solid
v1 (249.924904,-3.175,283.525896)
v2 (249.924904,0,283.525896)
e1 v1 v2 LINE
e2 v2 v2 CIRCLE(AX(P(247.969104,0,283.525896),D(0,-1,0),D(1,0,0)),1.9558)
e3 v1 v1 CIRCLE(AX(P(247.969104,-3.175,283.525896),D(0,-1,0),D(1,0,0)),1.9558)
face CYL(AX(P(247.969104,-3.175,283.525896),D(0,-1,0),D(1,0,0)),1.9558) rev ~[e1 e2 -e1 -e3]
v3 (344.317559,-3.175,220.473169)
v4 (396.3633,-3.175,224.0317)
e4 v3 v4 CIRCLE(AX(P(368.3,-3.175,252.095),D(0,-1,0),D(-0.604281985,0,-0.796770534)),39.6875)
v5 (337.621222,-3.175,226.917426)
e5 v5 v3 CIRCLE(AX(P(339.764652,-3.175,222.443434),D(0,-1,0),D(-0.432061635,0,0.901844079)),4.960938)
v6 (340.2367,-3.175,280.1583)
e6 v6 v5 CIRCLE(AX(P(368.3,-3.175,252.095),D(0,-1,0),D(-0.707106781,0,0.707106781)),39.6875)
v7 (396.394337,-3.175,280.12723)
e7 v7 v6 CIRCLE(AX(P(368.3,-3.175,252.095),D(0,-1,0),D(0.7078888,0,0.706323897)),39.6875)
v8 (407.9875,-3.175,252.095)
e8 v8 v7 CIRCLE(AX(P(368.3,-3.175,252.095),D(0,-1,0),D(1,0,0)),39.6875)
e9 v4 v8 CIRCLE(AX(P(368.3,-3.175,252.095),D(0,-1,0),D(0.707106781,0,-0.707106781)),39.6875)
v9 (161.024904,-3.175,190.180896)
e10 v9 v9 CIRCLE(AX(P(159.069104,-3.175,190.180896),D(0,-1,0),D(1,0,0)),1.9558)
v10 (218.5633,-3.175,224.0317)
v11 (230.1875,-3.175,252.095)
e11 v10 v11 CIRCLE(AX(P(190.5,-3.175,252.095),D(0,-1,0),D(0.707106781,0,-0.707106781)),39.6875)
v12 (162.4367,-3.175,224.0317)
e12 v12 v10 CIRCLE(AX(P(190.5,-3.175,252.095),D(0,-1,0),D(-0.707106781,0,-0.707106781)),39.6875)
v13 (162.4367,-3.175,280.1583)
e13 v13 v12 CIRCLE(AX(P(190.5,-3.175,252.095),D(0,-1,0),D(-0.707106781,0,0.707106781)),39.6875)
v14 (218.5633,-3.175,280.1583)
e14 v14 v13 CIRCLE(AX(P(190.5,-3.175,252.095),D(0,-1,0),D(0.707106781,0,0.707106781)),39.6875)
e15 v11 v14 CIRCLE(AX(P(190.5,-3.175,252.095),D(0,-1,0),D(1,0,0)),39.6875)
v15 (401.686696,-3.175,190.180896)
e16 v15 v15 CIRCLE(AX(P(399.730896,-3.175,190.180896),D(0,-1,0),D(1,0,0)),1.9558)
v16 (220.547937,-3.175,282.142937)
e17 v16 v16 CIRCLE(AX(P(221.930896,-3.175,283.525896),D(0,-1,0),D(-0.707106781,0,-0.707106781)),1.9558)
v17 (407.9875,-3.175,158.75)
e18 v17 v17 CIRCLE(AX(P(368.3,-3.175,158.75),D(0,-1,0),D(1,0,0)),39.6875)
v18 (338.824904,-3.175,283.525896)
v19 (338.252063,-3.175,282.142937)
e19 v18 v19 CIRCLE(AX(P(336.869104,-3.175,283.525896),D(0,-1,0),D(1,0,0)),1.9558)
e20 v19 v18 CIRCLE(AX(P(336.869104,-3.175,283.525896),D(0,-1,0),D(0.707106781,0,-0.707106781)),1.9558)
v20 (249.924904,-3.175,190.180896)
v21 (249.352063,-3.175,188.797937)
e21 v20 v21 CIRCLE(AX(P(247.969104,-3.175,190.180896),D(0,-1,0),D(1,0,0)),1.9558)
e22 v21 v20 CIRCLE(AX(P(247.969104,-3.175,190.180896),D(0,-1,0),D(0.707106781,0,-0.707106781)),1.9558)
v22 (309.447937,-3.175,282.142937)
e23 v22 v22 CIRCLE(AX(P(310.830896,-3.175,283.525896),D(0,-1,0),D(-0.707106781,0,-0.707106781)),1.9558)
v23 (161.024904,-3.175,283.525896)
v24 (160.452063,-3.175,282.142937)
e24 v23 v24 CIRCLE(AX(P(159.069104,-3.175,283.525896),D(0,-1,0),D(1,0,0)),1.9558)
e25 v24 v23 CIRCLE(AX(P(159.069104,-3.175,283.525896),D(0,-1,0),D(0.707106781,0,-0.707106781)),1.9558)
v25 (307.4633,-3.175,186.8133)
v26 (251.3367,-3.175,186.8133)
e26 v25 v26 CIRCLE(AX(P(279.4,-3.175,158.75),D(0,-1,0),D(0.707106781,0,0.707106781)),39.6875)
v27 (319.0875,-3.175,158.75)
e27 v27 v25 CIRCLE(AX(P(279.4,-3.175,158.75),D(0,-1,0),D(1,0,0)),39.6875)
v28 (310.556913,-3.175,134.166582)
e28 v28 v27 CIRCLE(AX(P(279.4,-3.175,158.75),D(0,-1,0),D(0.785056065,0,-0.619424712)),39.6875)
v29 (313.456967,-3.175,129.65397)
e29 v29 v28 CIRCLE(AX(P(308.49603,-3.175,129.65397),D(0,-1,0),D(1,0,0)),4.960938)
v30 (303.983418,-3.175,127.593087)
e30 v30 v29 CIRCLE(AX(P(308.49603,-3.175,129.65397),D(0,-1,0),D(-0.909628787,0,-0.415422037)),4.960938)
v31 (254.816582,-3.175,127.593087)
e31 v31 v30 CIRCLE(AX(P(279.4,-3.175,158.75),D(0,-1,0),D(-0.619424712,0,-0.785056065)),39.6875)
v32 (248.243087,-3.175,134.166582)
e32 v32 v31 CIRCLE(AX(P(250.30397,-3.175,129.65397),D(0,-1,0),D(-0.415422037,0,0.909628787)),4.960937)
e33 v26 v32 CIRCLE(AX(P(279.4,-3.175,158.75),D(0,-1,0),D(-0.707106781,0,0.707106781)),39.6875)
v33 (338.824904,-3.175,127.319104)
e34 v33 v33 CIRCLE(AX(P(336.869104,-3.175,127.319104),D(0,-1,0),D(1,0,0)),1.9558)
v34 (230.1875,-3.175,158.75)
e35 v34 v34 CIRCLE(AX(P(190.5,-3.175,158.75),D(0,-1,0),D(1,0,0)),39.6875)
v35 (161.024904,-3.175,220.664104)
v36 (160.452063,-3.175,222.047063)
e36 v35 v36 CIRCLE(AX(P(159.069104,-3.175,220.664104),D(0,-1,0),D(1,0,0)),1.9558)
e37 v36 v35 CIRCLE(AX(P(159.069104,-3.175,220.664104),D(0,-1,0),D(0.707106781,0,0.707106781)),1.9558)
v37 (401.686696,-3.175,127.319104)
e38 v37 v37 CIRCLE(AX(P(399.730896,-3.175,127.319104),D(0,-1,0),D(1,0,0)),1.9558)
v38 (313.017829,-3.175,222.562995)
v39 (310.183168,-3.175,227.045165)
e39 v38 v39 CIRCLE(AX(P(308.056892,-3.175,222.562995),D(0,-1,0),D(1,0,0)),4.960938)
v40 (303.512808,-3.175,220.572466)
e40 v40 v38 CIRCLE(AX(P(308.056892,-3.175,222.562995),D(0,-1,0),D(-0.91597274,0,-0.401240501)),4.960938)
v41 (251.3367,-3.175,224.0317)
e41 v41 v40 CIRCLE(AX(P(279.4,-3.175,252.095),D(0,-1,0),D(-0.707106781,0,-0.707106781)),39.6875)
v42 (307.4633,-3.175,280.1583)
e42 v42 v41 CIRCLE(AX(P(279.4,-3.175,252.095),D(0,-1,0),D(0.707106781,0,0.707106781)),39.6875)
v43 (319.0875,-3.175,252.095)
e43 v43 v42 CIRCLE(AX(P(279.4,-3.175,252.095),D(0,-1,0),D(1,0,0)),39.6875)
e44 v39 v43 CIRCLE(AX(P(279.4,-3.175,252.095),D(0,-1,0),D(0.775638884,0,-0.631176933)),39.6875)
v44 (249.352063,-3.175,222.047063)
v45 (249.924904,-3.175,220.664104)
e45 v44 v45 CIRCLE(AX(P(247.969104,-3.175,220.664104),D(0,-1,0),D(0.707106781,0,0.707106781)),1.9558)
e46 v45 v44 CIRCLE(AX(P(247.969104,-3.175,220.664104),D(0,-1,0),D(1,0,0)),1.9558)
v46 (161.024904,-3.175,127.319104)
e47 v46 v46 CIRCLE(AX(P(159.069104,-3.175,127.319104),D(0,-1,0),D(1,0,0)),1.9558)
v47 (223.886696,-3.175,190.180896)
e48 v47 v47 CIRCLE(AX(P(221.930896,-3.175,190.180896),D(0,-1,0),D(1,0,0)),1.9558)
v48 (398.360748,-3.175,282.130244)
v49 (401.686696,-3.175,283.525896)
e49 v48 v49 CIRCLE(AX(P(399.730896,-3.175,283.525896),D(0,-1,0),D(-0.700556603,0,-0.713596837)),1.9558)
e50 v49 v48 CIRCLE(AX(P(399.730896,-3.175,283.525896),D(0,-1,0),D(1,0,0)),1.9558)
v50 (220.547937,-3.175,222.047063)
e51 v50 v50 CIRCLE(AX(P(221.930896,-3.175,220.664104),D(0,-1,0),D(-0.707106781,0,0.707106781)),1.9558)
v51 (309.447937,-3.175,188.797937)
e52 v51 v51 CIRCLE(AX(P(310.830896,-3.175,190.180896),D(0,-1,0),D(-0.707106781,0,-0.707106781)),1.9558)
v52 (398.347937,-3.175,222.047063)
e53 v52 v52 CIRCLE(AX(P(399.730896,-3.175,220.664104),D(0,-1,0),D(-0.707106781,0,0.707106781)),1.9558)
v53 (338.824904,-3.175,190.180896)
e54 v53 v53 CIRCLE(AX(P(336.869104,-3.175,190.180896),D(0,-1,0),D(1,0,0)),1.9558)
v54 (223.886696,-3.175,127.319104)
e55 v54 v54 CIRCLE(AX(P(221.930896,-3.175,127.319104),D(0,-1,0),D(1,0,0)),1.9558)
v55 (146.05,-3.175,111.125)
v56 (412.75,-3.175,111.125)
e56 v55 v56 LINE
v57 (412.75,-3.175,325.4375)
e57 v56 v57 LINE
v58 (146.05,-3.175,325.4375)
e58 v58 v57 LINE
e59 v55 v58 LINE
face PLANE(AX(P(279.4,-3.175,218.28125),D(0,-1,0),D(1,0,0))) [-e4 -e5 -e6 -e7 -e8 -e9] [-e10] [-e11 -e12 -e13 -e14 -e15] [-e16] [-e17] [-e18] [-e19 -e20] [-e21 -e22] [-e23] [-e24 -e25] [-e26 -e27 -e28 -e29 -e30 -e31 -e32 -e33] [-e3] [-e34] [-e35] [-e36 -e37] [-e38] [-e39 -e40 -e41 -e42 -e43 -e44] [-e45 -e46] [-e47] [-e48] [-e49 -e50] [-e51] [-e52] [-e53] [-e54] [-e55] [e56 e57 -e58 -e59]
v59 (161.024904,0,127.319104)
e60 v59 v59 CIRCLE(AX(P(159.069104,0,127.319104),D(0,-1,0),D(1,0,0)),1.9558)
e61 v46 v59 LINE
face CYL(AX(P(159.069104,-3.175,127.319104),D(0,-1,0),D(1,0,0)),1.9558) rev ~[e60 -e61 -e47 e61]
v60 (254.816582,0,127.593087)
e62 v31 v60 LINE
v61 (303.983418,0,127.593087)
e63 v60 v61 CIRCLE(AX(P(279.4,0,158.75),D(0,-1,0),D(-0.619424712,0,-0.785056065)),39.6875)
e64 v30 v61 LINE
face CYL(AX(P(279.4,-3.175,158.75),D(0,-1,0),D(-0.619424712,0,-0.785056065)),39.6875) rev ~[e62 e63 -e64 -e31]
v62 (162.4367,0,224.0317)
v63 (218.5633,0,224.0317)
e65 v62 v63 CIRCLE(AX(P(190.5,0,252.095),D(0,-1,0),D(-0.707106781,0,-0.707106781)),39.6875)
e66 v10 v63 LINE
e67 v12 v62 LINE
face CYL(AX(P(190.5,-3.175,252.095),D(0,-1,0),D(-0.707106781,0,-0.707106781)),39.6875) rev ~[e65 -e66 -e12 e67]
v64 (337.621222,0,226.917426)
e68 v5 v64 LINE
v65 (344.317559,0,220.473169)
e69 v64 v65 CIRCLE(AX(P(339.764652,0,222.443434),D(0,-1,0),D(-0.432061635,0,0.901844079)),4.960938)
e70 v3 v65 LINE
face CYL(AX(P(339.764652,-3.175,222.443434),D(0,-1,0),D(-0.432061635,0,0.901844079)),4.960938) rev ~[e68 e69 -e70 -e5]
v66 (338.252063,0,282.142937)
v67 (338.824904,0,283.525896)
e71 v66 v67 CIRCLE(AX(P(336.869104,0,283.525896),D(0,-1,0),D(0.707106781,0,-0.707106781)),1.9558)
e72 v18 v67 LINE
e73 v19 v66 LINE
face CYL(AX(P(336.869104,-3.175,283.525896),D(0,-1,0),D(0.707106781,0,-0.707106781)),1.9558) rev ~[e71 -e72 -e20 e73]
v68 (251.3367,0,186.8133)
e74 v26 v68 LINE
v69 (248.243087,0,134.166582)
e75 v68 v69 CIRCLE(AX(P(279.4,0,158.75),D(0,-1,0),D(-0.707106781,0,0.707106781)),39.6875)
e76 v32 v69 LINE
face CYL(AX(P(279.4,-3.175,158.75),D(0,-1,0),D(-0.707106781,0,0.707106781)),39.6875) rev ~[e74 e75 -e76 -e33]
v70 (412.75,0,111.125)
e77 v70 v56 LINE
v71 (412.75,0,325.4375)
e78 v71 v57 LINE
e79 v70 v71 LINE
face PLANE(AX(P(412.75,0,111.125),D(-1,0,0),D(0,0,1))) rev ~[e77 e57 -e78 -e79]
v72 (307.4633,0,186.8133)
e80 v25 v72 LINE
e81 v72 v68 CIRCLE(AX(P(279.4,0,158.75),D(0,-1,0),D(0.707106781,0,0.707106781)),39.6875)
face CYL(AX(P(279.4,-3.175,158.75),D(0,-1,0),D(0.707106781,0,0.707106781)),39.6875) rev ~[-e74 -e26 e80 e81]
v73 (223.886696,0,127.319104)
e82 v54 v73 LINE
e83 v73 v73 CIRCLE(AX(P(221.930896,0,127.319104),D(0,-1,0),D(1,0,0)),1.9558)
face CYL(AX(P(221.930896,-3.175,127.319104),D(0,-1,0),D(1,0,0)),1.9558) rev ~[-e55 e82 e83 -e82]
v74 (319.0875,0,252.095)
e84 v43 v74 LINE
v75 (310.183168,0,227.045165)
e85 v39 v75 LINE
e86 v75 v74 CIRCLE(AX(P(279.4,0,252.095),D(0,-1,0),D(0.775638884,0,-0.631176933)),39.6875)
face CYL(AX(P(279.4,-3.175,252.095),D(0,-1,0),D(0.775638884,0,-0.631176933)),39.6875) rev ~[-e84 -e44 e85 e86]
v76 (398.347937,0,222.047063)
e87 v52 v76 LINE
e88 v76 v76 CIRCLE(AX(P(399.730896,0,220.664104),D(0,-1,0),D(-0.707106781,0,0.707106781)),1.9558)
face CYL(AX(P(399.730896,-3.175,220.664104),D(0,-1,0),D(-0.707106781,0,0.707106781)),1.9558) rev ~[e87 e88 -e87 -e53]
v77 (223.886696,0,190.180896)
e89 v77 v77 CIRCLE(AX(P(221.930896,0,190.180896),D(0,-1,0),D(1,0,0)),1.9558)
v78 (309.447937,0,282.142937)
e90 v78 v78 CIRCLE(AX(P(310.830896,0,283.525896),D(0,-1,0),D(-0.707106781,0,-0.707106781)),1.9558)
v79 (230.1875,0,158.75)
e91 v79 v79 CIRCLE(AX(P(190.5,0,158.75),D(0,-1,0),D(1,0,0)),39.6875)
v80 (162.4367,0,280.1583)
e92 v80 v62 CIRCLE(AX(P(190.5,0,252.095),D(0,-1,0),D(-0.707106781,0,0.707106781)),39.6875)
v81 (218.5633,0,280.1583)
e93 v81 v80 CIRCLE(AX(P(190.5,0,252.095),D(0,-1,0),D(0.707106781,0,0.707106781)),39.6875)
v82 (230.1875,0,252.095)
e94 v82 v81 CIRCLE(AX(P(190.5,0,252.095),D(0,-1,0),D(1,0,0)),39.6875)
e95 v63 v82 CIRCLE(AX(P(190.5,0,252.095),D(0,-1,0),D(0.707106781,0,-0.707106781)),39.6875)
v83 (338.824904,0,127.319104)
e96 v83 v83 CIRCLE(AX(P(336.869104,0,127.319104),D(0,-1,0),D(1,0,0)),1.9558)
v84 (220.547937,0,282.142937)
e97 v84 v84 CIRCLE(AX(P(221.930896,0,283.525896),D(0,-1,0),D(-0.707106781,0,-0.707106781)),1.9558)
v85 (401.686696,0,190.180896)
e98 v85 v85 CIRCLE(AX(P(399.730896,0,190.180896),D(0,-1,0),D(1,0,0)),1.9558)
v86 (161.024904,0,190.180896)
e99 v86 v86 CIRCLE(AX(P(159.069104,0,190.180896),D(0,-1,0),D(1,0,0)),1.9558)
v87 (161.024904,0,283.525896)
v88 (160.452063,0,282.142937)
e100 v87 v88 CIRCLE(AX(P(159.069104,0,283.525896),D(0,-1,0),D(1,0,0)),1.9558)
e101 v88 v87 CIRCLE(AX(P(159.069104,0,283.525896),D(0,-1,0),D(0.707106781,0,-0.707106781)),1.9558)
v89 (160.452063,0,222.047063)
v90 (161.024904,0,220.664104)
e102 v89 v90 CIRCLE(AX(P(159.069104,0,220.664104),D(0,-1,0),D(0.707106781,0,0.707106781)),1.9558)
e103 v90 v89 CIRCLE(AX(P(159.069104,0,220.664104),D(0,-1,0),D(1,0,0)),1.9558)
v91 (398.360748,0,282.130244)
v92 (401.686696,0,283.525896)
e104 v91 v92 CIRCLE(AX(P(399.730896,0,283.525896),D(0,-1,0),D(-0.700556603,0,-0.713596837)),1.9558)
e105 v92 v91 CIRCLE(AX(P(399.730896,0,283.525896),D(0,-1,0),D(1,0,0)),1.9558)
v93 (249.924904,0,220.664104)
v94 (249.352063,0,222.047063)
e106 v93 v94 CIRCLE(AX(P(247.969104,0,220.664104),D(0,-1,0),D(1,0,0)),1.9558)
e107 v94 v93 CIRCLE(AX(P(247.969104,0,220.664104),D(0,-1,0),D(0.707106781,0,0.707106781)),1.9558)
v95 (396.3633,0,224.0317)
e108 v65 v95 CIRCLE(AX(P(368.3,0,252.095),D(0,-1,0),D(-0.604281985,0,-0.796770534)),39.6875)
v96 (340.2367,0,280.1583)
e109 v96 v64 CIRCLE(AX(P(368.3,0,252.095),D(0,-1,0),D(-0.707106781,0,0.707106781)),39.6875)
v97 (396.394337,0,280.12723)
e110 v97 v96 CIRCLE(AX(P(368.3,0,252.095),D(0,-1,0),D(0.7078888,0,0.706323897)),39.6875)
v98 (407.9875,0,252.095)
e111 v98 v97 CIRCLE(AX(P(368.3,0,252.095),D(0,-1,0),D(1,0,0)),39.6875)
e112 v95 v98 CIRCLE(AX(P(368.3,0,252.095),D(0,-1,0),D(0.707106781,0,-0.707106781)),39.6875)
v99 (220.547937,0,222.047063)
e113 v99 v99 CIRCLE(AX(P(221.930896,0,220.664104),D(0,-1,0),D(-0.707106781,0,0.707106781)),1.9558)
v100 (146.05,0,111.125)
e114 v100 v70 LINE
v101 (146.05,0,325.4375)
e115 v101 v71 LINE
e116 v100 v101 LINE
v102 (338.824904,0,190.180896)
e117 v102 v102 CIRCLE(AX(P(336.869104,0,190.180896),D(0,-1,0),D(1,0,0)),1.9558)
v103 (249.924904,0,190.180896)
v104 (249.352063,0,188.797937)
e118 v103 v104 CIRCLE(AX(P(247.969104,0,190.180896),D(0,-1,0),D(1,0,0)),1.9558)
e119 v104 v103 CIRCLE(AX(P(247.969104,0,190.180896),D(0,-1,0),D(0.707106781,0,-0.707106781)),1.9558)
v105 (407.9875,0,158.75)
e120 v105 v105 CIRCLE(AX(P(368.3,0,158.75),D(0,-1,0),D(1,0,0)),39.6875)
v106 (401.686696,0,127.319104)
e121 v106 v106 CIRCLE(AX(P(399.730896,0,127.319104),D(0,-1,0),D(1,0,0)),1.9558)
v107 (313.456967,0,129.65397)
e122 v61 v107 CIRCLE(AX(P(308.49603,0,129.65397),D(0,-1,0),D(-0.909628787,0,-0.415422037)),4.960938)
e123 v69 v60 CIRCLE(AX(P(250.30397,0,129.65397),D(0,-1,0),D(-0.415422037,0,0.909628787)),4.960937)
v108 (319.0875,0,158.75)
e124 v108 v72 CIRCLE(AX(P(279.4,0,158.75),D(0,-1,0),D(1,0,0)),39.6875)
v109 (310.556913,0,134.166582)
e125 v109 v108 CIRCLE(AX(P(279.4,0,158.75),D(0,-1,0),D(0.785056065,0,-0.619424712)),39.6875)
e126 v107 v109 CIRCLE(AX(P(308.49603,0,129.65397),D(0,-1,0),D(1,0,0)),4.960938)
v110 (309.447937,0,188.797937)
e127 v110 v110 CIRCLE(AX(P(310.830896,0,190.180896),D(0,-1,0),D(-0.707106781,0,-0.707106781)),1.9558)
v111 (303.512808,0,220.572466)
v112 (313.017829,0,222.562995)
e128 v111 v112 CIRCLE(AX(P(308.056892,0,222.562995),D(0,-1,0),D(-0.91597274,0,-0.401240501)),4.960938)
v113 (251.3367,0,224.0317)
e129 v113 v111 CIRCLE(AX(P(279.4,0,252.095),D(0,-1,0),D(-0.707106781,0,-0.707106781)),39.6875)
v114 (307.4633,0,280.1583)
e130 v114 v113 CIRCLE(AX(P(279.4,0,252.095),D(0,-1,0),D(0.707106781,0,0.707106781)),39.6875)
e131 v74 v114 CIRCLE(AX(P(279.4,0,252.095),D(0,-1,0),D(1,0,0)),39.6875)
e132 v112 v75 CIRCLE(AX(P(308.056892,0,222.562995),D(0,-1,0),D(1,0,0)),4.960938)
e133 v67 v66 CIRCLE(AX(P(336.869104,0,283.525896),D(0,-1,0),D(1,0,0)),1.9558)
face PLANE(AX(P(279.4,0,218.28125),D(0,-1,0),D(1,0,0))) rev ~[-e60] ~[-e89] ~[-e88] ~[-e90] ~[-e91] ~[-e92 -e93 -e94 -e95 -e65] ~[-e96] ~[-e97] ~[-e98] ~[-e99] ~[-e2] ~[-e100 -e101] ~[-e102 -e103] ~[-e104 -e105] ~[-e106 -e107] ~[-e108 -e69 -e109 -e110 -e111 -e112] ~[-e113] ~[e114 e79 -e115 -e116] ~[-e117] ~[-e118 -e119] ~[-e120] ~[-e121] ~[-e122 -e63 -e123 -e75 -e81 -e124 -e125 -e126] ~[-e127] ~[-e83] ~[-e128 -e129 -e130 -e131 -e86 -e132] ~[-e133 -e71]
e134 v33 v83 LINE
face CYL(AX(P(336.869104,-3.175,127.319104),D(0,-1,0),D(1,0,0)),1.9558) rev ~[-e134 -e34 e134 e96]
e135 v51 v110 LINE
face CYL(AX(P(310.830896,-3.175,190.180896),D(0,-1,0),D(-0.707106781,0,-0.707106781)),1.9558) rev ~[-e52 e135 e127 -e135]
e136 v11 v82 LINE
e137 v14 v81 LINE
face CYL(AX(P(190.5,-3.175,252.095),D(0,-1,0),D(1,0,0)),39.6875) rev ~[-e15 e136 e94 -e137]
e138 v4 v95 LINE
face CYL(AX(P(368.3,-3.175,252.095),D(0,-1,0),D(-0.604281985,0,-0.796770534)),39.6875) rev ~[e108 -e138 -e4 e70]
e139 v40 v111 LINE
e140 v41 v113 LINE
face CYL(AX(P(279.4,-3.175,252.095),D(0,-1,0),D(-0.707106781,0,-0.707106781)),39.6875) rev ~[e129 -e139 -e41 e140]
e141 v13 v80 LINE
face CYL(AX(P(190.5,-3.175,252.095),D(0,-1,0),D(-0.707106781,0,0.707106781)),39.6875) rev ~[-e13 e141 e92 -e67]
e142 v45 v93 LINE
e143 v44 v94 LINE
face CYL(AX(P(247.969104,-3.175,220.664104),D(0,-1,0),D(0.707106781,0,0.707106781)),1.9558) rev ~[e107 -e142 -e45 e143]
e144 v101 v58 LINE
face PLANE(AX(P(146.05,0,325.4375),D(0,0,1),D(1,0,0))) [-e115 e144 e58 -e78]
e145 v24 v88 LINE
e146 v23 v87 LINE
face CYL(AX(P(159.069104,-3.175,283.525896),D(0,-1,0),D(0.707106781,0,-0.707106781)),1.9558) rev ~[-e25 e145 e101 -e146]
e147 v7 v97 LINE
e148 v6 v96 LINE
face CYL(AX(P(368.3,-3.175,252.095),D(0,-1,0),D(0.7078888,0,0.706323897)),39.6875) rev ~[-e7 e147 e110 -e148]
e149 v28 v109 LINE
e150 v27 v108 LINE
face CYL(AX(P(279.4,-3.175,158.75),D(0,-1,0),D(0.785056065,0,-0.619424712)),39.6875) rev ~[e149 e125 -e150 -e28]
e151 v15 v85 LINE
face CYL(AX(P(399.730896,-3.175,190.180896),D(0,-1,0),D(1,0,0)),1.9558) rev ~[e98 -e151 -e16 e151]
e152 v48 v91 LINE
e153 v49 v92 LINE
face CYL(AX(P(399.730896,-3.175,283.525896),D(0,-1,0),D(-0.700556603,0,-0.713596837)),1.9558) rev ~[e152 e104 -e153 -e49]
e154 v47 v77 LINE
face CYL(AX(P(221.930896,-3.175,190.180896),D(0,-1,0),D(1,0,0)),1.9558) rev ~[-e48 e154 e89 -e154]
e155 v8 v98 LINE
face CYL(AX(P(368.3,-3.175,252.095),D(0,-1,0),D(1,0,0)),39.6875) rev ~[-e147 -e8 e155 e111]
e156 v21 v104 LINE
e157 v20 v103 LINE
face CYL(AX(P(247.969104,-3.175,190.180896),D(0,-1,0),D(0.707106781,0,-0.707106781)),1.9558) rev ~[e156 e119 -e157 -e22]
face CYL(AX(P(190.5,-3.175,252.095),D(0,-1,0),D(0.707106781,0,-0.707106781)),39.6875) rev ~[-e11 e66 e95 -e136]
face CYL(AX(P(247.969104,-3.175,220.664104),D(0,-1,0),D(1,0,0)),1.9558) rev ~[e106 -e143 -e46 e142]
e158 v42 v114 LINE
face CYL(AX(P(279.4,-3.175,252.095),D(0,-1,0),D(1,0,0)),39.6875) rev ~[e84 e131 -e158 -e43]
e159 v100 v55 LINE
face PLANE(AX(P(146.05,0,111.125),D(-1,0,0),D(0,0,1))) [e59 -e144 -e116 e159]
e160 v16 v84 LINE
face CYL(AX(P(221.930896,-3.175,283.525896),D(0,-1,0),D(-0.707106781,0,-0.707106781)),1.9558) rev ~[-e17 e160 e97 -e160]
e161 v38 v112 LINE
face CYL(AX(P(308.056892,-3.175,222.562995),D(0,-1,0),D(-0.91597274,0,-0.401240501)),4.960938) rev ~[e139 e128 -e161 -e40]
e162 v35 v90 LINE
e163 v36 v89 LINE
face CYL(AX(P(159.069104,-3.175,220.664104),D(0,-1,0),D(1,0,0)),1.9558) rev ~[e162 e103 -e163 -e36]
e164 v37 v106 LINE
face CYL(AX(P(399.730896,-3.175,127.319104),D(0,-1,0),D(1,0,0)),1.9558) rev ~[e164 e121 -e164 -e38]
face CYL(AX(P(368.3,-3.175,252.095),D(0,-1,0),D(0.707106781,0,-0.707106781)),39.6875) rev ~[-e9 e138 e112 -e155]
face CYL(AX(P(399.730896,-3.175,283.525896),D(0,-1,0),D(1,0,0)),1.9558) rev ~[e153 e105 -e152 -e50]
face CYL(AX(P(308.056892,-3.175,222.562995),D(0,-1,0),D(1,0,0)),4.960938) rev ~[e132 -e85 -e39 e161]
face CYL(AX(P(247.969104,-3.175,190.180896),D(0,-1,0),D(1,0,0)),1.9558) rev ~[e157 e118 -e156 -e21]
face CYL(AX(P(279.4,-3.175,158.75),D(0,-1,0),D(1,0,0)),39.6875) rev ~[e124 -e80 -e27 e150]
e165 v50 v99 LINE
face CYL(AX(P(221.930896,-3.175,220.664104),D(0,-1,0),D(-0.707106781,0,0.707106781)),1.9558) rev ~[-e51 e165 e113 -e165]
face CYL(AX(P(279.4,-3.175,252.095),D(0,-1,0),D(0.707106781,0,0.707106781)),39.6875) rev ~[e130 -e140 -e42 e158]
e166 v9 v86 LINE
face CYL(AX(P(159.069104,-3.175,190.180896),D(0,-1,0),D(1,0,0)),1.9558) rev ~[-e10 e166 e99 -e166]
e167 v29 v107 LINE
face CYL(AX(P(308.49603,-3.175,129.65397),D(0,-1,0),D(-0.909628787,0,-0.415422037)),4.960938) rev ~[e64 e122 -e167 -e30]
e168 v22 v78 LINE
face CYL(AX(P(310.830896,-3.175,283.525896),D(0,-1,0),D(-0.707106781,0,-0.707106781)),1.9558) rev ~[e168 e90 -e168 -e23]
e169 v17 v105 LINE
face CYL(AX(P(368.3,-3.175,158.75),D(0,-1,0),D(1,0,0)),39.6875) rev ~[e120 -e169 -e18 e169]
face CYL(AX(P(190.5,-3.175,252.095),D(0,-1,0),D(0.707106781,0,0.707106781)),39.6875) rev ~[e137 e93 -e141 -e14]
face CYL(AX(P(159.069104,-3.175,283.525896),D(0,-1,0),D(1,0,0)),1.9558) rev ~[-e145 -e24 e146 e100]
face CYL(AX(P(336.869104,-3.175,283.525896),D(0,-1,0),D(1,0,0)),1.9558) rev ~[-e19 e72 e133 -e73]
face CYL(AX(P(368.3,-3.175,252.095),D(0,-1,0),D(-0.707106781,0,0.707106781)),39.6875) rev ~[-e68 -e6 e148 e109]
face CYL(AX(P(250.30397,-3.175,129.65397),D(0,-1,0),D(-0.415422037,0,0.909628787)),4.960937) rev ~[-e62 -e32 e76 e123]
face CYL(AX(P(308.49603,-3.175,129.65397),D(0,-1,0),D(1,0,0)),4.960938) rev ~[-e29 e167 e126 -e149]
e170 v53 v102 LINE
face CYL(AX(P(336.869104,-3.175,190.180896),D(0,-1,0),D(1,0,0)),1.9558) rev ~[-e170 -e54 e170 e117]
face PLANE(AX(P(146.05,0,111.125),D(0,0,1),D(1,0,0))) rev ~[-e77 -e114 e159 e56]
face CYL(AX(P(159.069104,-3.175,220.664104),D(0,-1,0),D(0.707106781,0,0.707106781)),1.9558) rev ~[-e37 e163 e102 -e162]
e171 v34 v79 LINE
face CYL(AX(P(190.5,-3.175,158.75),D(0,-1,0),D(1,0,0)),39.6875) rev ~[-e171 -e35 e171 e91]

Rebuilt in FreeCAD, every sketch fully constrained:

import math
import FreeCAD as App
import Part
import Sketcher

V = App.Vector
Q = App.Units.Quantity

doc = App.newDocument("Part")
body = doc.addObject("PartDesign::Body", "Body")

sketch1 = doc.addObject("Sketcher::SketchObject", "Sketch")
body.addObject(sketch1)
sketch1.AttachmentSupport = (doc.XZ_Plane, [""])
sketch1.MapMode = "FlatFace"
sketch1.addGeometry([
    Part.LineSegment(V(146, 325, 0), V(146, 111, 0)),
    Part.LineSegment(V(146, 111, 0), V(413, 111, 0)),
    Part.LineSegment(V(413, 111, 0), V(413, 325, 0)),
    Part.LineSegment(V(413, 325, 0), V(146, 325, 0)),
], False)
sketch1.addConstraint([
    Sketcher.Constraint("Coincident", 0, 2, 1, 1),
    Sketcher.Constraint("Coincident", 1, 2, 2, 1),
    Sketcher.Constraint("Coincident", 2, 2, 3, 1),
    Sketcher.Constraint("Coincident", 3, 2, 0, 1),
    Sketcher.Constraint("Vertical", 0),
    Sketcher.Constraint("Horizontal", 1),
    Sketcher.Constraint("Vertical", 2),
    Sketcher.Constraint("Horizontal", 3),
    Sketcher.Constraint("DistanceX", 1, 1, 1, 2, Q("10.5 in")),
    Sketcher.Constraint("DistanceY", 0, 2, 0, 1, Q("8.4375 in")),
    Sketcher.Constraint("DistanceX", -1, 1, 0, 2, Q("5.75 in")),
    Sketcher.Constraint("DistanceY", -1, 1, 0, 2, Q("4.375 in")),
])
pad1 = doc.addObject("PartDesign::Pad", "Pad")
body.addObject(pad1)
pad1.Profile = sketch1
pad1.Length = Q("0.125 in")

sketch2 = doc.addObject("Sketcher::SketchObject", "Sketch001")
body.addObject(sketch2)
sketch2.AttachmentSupport = (doc.XZ_Plane, [""])
sketch2.MapMode = "FlatFace"
sketch2.AttachmentOffset = App.Placement(V(0, 0, 0.125 * 25.4), App.Rotation())
sketch2.addGeometry([
    Part.ArcOfCircle(Part.Circle(V(250.3, 129.7, 0), V(0, 0, 1), 5), math.radians(115), math.radians(335)),
    Part.ArcOfCircle(Part.Circle(V(279.4, 158.8, 0), V(0, 0, 1), 39.7), math.radians(-128), math.radians(-52)),
    Part.ArcOfCircle(Part.Circle(V(308.5, 129.7, 0), V(0, 0, 1), 5), math.radians(-155), math.radians(0)),
    Part.ArcOfCircle(Part.Circle(V(308.5, 129.7, 0), V(0, 0, 1), 5), math.radians(0), math.radians(65)),
    Part.ArcOfCircle(Part.Circle(V(279.4, 158.8, 0), V(0, 0, 1), 39.7), math.radians(-38), math.radians(0)),
    Part.ArcOfCircle(Part.Circle(V(279.4, 158.8, 0), V(0, 0, 1), 39.7), math.radians(0), math.radians(45)),
    Part.ArcOfCircle(Part.Circle(V(279.4, 158.8, 0), V(0, 0, 1), 39.7), math.radians(45), math.radians(135)),
    Part.ArcOfCircle(Part.Circle(V(279.4, 158.8, 0), V(0, 0, 1), 39.7), math.radians(135), math.radians(218)),
    Part.ArcOfCircle(Part.Circle(V(190.5, 252.1, 0), V(0, 0, 1), 39.7), math.radians(45), math.radians(135)),
    Part.ArcOfCircle(Part.Circle(V(190.5, 252.1, 0), V(0, 0, 1), 39.7), math.radians(135), math.radians(225)),
    Part.ArcOfCircle(Part.Circle(V(190.5, 252.1, 0), V(0, 0, 1), 39.7), math.radians(-135), math.radians(-45)),
    Part.ArcOfCircle(Part.Circle(V(190.5, 252.1, 0), V(0, 0, 1), 39.7), math.radians(-45), math.radians(0)),
    Part.ArcOfCircle(Part.Circle(V(190.5, 252.1, 0), V(0, 0, 1), 39.7), math.radians(0), math.radians(45)),
    Part.Circle(V(368.3, 158.8, 0), V(0, 0, 1), 39.7),
    Part.ArcOfCircle(Part.Circle(V(279.4, 252.1, 0), V(0, 0, 1), 39.7), math.radians(-39), math.radians(0)),
    Part.ArcOfCircle(Part.Circle(V(279.4, 252.1, 0), V(0, 0, 1), 39.7), math.radians(0), math.radians(45)),
    Part.ArcOfCircle(Part.Circle(V(279.4, 252.1, 0), V(0, 0, 1), 39.7), math.radians(45), math.radians(225)),
    Part.ArcOfCircle(Part.Circle(V(279.4, 252.1, 0), V(0, 0, 1), 39.7), math.radians(-135), math.radians(-53)),
    Part.ArcOfCircle(Part.Circle(V(308.1, 222.6, 0), V(0, 0, 1), 5), math.radians(-156), math.radians(0)),
    Part.ArcOfCircle(Part.Circle(V(308.1, 222.6, 0), V(0, 0, 1), 5), math.radians(0), math.radians(65)),
    Part.Circle(V(190.5, 158.8, 0), V(0, 0, 1), 39.7),
    Part.ArcOfCircle(Part.Circle(V(368.3, 252.1, 0), V(0, 0, 1), 39.7), math.radians(-45), math.radians(0)),
    Part.ArcOfCircle(Part.Circle(V(368.3, 252.1, 0), V(0, 0, 1), 39.7), math.radians(0), math.radians(45)),
    Part.ArcOfCircle(Part.Circle(V(368.3, 252.1, 0), V(0, 0, 1), 39.7), math.radians(45), math.radians(135)),
    Part.ArcOfCircle(Part.Circle(V(368.3, 252.1, 0), V(0, 0, 1), 39.7), math.radians(135), math.radians(219)),
    Part.ArcOfCircle(Part.Circle(V(339.8, 222.4, 0), V(0, 0, 1), 5), math.radians(116), math.radians(337)),
    Part.ArcOfCircle(Part.Circle(V(368.3, 252.1, 0), V(0, 0, 1), 39.7), math.radians(-127), math.radians(-45)),
    Part.ArcOfCircle(Part.Circle(V(336.9, 283.5, 0), V(0, 0, 1), 2), math.radians(0), math.radians(315)),
    Part.ArcOfCircle(Part.Circle(V(336.9, 283.5, 0), V(0, 0, 1), 2), math.radians(-45), math.radians(0)),
    Part.ArcOfCircle(Part.Circle(V(159.1, 283.5, 0), V(0, 0, 1), 2), math.radians(0), math.radians(315)),
    Part.ArcOfCircle(Part.Circle(V(159.1, 283.5, 0), V(0, 0, 1), 2), math.radians(-45), math.radians(0)),
    Part.Circle(V(310.8, 283.5, 0), V(0, 0, 1), 2),
    Part.Circle(V(221.9, 283.5, 0), V(0, 0, 1), 2),
    Part.Circle(V(221.9, 190.2, 0), V(0, 0, 1), 2),
    Part.Circle(V(399.7, 190.2, 0), V(0, 0, 1), 2),
    Part.Circle(V(159.1, 127.3, 0), V(0, 0, 1), 2),
    Part.Circle(V(336.9, 127.3, 0), V(0, 0, 1), 2),
    Part.Circle(V(399.7, 220.7, 0), V(0, 0, 1), 2),
    Part.Circle(V(221.9, 127.3, 0), V(0, 0, 1), 2),
    Part.Circle(V(221.9, 220.7, 0), V(0, 0, 1), 2),
    Part.ArcOfCircle(Part.Circle(V(399.7, 283.5, 0), V(0, 0, 1), 2), math.radians(0), math.radians(226)),
    Part.ArcOfCircle(Part.Circle(V(399.7, 283.5, 0), V(0, 0, 1), 2), math.radians(-134), math.radians(0)),
    Part.Circle(V(399.7, 127.3, 0), V(0, 0, 1), 2),
    Part.Circle(V(159.1, 190.2, 0), V(0, 0, 1), 2),
    Part.Circle(V(336.9, 190.2, 0), V(0, 0, 1), 2),
    Part.Circle(V(248, 283.5, 0), V(0, 0, 1), 2),
    Part.ArcOfCircle(Part.Circle(V(248, 220.7, 0), V(0, 0, 1), 2), math.radians(0), math.radians(45)),
    Part.ArcOfCircle(Part.Circle(V(248, 220.7, 0), V(0, 0, 1), 2), math.radians(45), math.radians(360)),
    Part.ArcOfCircle(Part.Circle(V(159.1, 220.7, 0), V(0, 0, 1), 2), math.radians(0), math.radians(45)),
    Part.ArcOfCircle(Part.Circle(V(159.1, 220.7, 0), V(0, 0, 1), 2), math.radians(45), math.radians(360)),
    Part.ArcOfCircle(Part.Circle(V(248, 190.2, 0), V(0, 0, 1), 2), math.radians(0), math.radians(315)),
    Part.ArcOfCircle(Part.Circle(V(248, 190.2, 0), V(0, 0, 1), 2), math.radians(-45), math.radians(0)),
    Part.Circle(V(310.8, 190.2, 0), V(0, 0, 1), 2),
], False)
sketch2.addConstraint([
    Sketcher.Constraint("Coincident", 0, 2, 1, 1),
    Sketcher.Constraint("Coincident", 1, 2, 2, 1),
    Sketcher.Constraint("Tangent", 2, 2, 3, 1),
    Sketcher.Constraint("Coincident", 3, 2, 4, 1),
    Sketcher.Constraint("Tangent", 4, 2, 5, 1),
    Sketcher.Constraint("Tangent", 5, 2, 6, 1),
    Sketcher.Constraint("Tangent", 6, 2, 7, 1),
    Sketcher.Constraint("Coincident", 7, 2, 0, 1),
    Sketcher.Constraint("Tangent", 8, 2, 9, 1),
    Sketcher.Constraint("Tangent", 9, 2, 10, 1),
    Sketcher.Constraint("Tangent", 10, 2, 11, 1),
    Sketcher.Constraint("Tangent", 11, 2, 12, 1),
    Sketcher.Constraint("Tangent", 12, 2, 8, 1),
    Sketcher.Constraint("Tangent", 14, 2, 15, 1),
    Sketcher.Constraint("Tangent", 15, 2, 16, 1),
    Sketcher.Constraint("Tangent", 16, 2, 17, 1),
    Sketcher.Constraint("Coincident", 17, 2, 18, 1),
    Sketcher.Constraint("Tangent", 18, 2, 19, 1),
    Sketcher.Constraint("Coincident", 19, 2, 14, 1),
    Sketcher.Constraint("Tangent", 21, 2, 22, 1),
    Sketcher.Constraint("Tangent", 22, 2, 23, 1),
    Sketcher.Constraint("Tangent", 23, 2, 24, 1),
    Sketcher.Constraint("Coincident", 24, 2, 25, 1),
    Sketcher.Constraint("Coincident", 25, 2, 26, 1),
    Sketcher.Constraint("Tangent", 26, 2, 21, 1),
    Sketcher.Constraint("Tangent", 27, 1, 28, 2),
    Sketcher.Constraint("Coincident", 28, 1, 27, 2),
    Sketcher.Constraint("Tangent", 29, 1, 30, 2),
    Sketcher.Constraint("Coincident", 30, 1, 29, 2),
    Sketcher.Constraint("Tangent", 40, 1, 41, 2),
    Sketcher.Constraint("Coincident", 41, 1, 40, 2),
    Sketcher.Constraint("Tangent", 46, 1, 47, 2),
    Sketcher.Constraint("Coincident", 47, 1, 46, 2),
    Sketcher.Constraint("Tangent", 48, 1, 49, 2),
    Sketcher.Constraint("Coincident", 49, 1, 48, 2),
    Sketcher.Constraint("Tangent", 50, 1, 51, 2),
    Sketcher.Constraint("Coincident", 51, 1, 50, 2),
    Sketcher.Constraint("Coincident", 4, 3, 1, 3),
    Sketcher.Constraint("Coincident", 6, 3, 1, 3),
    Sketcher.Constraint("Coincident", 10, 3, 8, 3),
    Sketcher.Constraint("Coincident", 16, 3, 14, 3),
    Sketcher.Constraint("Coincident", 23, 3, 21, 3),
    Sketcher.Constraint("Equal", 0, 2),
    Sketcher.Constraint("Equal", 2, 3),
    Sketcher.Constraint("Equal", 1, 4),
    Sketcher.Constraint("Equal", 6, 7),
    Sketcher.Constraint("Equal", 7, 8),
    Sketcher.Constraint("Equal", 12, 13),
    Sketcher.Constraint("Equal", 13, 14),
    Sketcher.Constraint("Equal", 16, 17),
    Sketcher.Constraint("Equal", 3, 18),
    Sketcher.Constraint("Equal", 18, 19),
    Sketcher.Constraint("Equal", 17, 20),
    Sketcher.Constraint("Equal", 20, 21),
    Sketcher.Constraint("Equal", 23, 24),
    Sketcher.Constraint("Equal", 19, 25),
    Sketcher.Constraint("Equal", 24, 26),
    Sketcher.Constraint("Equal", 28, 29),
    Sketcher.Constraint("Equal", 30, 31),
    Sketcher.Constraint("Equal", 31, 32),
    Sketcher.Constraint("Equal", 32, 33),
    Sketcher.Constraint("Equal", 33, 34),
    Sketcher.Constraint("Equal", 34, 35),
    Sketcher.Constraint("Equal", 35, 36),
    Sketcher.Constraint("Equal", 36, 37),
    Sketcher.Constraint("Equal", 37, 38),
    Sketcher.Constraint("Equal", 38, 39),
    Sketcher.Constraint("Equal", 39, 40),
    Sketcher.Constraint("Equal", 41, 42),
    Sketcher.Constraint("Equal", 42, 43),
    Sketcher.Constraint("Equal", 43, 44),
    Sketcher.Constraint("Equal", 44, 45),
    Sketcher.Constraint("Equal", 45, 46),
    Sketcher.Constraint("Equal", 47, 48),
    Sketcher.Constraint("Equal", 49, 50),
    Sketcher.Constraint("Equal", 51, 52),
    Sketcher.Constraint("Horizontal", 0, 3, 2, 3),
    Sketcher.Constraint("Horizontal", 7, 3, 13, 3),
    Sketcher.Constraint("Horizontal", 12, 3, 14, 3),
    Sketcher.Constraint("Horizontal", 13, 3, 20, 3),
    Sketcher.Constraint("Horizontal", 17, 3, 21, 3),
    Sketcher.Constraint("Horizontal", 28, 3, 29, 3),
    Sketcher.Constraint("Horizontal", 30, 3, 31, 3),
    Sketcher.Constraint("Horizontal", 31, 3, 32, 3),
    Sketcher.Constraint("Horizontal", 33, 3, 34, 3),
    Sketcher.Constraint("Horizontal", 35, 3, 36, 3),
    Sketcher.Constraint("Horizontal", 36, 3, 38, 3),
    Sketcher.Constraint("Horizontal", 37, 3, 39, 3),
    Sketcher.Constraint("Horizontal", 32, 3, 40, 3),
    Sketcher.Constraint("Horizontal", 38, 3, 42, 3),
    Sketcher.Constraint("Horizontal", 34, 3, 43, 3),
    Sketcher.Constraint("Horizontal", 43, 3, 44, 3),
    Sketcher.Constraint("Horizontal", 41, 3, 45, 3),
    Sketcher.Constraint("Horizontal", 39, 3, 46, 3),
    Sketcher.Constraint("Horizontal", 47, 3, 48, 3),
    Sketcher.Constraint("Horizontal", 44, 3, 50, 3),
    Sketcher.Constraint("Horizontal", 51, 3, 52, 3),
    Sketcher.Constraint("Horizontal", 0, 2, 1, 2),
    Sketcher.Constraint("Horizontal", 3, 3, 2, 2),
    Sketcher.Constraint("Horizontal", 20, 3, 4, 2),
    Sketcher.Constraint("Horizontal", 5, 2, 6, 2),
    Sketcher.Constraint("Horizontal", 9, 2, 10, 2),
    Sketcher.Constraint("Horizontal", 26, 3, 11, 2),
    Sketcher.Constraint("Horizontal", 8, 2, 12, 2),
    Sketcher.Constraint("Horizontal", 11, 2, 14, 2),
    Sketcher.Constraint("Horizontal", 12, 2, 15, 2),
    Sketcher.Constraint("Horizontal", 10, 2, 16, 2),
    Sketcher.Constraint("Horizontal", 19, 3, 18, 2),
    Sketcher.Constraint("Horizontal", 14, 2, 21, 2),
    Sketcher.Constraint("Horizontal", 15, 2, 23, 2),
    Sketcher.Constraint("Horizontal", 16, 2, 26, 2),
    Sketcher.Constraint("Horizontal", 45, 3, 27, 1),
    Sketcher.Constraint("Horizontal", 27, 1, 29, 1),
    Sketcher.Constraint("Horizontal", 28, 1, 30, 1),
    Sketcher.Constraint("Horizontal", 29, 1, 40, 1),
    Sketcher.Constraint("Horizontal", 49, 3, 46, 1),
    Sketcher.Constraint("Horizontal", 46, 1, 48, 1),
    Sketcher.Constraint("Horizontal", 47, 1, 49, 1),
    Sketcher.Constraint("Horizontal", 52, 3, 50, 1),
    Sketcher.Constraint("Vertical", 7, 3, 14, 3),
    Sketcher.Constraint("Vertical", 12, 3, 20, 3),
    Sketcher.Constraint("Vertical", 13, 3, 21, 3),
    Sketcher.Constraint("Vertical", 32, 3, 33, 3),
    Sketcher.Constraint("Vertical", 30, 3, 35, 3),
    Sketcher.Constraint("Vertical", 28, 3, 36, 3),
    Sketcher.Constraint("Vertical", 34, 3, 37, 3),
    Sketcher.Constraint("Vertical", 33, 3, 38, 3),
    Sketcher.Constraint("Vertical", 38, 3, 39, 3),
    Sketcher.Constraint("Vertical", 37, 3, 40, 3),
    Sketcher.Constraint("Vertical", 41, 3, 42, 3),
    Sketcher.Constraint("Vertical", 35, 3, 43, 3),
    Sketcher.Constraint("Vertical", 36, 3, 44, 3),
    Sketcher.Constraint("Vertical", 45, 3, 46, 3),
    Sketcher.Constraint("Vertical", 43, 3, 48, 3),
    Sketcher.Constraint("Vertical", 47, 3, 50, 3),
    Sketcher.Constraint("Vertical", 31, 3, 52, 3),
    Sketcher.Constraint("Vertical", 8, 2, 9, 2),
    Sketcher.Constraint("Vertical", 5, 2, 15, 2),
    Sketcher.Constraint("Vertical", 30, 1, 49, 1),
    Sketcher.Constraint("Vertical", 47, 1, 51, 1),
    Sketcher.Constraint("Diameter", 13, Q("3.125 in")),
    Sketcher.Constraint("Diameter", 31, Q("0.154 in")),
    Sketcher.Constraint("DistanceX", -1, 1, 1, 3, Q("11 in")),
    Sketcher.Constraint("DistanceX", -1, 1, 8, 3, Q("7.5 in")),
    Sketcher.Constraint("DistanceX", -1, 1, 13, 3, Q("14.5 in")),
    Sketcher.Constraint("DistanceY", -1, 1, 1, 3, Q("6.25 in")),
    Sketcher.Constraint("DistanceY", -1, 1, 8, 3, Q("9.925 in")),
    Sketcher.Constraint("Radius", 0, Q("4.960938 mm")),
    Sketcher.Constraint("DistanceX", -1, 1, 5, 2, Q("307.4633 mm")),
    Sketcher.Constraint("DistanceX", -1, 1, 0, 3, Q("250.30397 mm")),
    Sketcher.Constraint("DistanceY", -1, 1, 0, 3, Q("129.65397 mm")),
    Sketcher.Constraint("DistanceX", -1, 1, 18, 3, Q("308.056892 mm")),
    Sketcher.Constraint("DistanceX", -1, 1, 17, 2, Q("303.512808 mm")),
    Sketcher.Constraint("DistanceY", -1, 1, 22, 2, Q("280.12723 mm")),
    Sketcher.Constraint("DistanceX", -1, 1, 24, 2, Q("337.621222 mm")),
    Sketcher.Constraint("DistanceX", -1, 1, 25, 2, Q("344.317559 mm")),
    Sketcher.Constraint("DistanceX", -1, 1, 27, 3, Q("336.869104 mm")),
    Sketcher.Constraint("DistanceY", -1, 1, 27, 3, Q("283.525896 mm")),
    Sketcher.Constraint("DistanceX", -1, 1, 29, 3, Q("159.069104 mm")),
    Sketcher.Constraint("DistanceX", -1, 1, 31, 3, Q("310.830896 mm")),
    Sketcher.Constraint("DistanceX", -1, 1, 32, 3, Q("221.930896 mm")),
    Sketcher.Constraint("DistanceY", -1, 1, 33, 3, Q("190.180896 mm")),
    Sketcher.Constraint("DistanceX", -1, 1, 34, 3, Q("399.730896 mm")),
    Sketcher.Constraint("DistanceY", -1, 1, 35, 3, Q("127.319104 mm")),
    Sketcher.Constraint("DistanceY", -1, 1, 37, 3, Q("220.664104 mm")),
    Sketcher.Constraint("DistanceX", -1, 1, 45, 3, Q("247.969104 mm")),
    Sketcher.Constraint("DistanceX", -1, 1, 28, 1, Q("338.252063 mm")),
    Sketcher.Constraint("DistanceX", -1, 1, 41, 1, Q("398.360748 mm")),
])
pocket1 = doc.addObject("PartDesign::Pocket", "Pocket")
body.addObject(pocket1)
pocket1.Profile = sketch2
pocket1.Length = Q("0.125 in")

doc.recompute()
